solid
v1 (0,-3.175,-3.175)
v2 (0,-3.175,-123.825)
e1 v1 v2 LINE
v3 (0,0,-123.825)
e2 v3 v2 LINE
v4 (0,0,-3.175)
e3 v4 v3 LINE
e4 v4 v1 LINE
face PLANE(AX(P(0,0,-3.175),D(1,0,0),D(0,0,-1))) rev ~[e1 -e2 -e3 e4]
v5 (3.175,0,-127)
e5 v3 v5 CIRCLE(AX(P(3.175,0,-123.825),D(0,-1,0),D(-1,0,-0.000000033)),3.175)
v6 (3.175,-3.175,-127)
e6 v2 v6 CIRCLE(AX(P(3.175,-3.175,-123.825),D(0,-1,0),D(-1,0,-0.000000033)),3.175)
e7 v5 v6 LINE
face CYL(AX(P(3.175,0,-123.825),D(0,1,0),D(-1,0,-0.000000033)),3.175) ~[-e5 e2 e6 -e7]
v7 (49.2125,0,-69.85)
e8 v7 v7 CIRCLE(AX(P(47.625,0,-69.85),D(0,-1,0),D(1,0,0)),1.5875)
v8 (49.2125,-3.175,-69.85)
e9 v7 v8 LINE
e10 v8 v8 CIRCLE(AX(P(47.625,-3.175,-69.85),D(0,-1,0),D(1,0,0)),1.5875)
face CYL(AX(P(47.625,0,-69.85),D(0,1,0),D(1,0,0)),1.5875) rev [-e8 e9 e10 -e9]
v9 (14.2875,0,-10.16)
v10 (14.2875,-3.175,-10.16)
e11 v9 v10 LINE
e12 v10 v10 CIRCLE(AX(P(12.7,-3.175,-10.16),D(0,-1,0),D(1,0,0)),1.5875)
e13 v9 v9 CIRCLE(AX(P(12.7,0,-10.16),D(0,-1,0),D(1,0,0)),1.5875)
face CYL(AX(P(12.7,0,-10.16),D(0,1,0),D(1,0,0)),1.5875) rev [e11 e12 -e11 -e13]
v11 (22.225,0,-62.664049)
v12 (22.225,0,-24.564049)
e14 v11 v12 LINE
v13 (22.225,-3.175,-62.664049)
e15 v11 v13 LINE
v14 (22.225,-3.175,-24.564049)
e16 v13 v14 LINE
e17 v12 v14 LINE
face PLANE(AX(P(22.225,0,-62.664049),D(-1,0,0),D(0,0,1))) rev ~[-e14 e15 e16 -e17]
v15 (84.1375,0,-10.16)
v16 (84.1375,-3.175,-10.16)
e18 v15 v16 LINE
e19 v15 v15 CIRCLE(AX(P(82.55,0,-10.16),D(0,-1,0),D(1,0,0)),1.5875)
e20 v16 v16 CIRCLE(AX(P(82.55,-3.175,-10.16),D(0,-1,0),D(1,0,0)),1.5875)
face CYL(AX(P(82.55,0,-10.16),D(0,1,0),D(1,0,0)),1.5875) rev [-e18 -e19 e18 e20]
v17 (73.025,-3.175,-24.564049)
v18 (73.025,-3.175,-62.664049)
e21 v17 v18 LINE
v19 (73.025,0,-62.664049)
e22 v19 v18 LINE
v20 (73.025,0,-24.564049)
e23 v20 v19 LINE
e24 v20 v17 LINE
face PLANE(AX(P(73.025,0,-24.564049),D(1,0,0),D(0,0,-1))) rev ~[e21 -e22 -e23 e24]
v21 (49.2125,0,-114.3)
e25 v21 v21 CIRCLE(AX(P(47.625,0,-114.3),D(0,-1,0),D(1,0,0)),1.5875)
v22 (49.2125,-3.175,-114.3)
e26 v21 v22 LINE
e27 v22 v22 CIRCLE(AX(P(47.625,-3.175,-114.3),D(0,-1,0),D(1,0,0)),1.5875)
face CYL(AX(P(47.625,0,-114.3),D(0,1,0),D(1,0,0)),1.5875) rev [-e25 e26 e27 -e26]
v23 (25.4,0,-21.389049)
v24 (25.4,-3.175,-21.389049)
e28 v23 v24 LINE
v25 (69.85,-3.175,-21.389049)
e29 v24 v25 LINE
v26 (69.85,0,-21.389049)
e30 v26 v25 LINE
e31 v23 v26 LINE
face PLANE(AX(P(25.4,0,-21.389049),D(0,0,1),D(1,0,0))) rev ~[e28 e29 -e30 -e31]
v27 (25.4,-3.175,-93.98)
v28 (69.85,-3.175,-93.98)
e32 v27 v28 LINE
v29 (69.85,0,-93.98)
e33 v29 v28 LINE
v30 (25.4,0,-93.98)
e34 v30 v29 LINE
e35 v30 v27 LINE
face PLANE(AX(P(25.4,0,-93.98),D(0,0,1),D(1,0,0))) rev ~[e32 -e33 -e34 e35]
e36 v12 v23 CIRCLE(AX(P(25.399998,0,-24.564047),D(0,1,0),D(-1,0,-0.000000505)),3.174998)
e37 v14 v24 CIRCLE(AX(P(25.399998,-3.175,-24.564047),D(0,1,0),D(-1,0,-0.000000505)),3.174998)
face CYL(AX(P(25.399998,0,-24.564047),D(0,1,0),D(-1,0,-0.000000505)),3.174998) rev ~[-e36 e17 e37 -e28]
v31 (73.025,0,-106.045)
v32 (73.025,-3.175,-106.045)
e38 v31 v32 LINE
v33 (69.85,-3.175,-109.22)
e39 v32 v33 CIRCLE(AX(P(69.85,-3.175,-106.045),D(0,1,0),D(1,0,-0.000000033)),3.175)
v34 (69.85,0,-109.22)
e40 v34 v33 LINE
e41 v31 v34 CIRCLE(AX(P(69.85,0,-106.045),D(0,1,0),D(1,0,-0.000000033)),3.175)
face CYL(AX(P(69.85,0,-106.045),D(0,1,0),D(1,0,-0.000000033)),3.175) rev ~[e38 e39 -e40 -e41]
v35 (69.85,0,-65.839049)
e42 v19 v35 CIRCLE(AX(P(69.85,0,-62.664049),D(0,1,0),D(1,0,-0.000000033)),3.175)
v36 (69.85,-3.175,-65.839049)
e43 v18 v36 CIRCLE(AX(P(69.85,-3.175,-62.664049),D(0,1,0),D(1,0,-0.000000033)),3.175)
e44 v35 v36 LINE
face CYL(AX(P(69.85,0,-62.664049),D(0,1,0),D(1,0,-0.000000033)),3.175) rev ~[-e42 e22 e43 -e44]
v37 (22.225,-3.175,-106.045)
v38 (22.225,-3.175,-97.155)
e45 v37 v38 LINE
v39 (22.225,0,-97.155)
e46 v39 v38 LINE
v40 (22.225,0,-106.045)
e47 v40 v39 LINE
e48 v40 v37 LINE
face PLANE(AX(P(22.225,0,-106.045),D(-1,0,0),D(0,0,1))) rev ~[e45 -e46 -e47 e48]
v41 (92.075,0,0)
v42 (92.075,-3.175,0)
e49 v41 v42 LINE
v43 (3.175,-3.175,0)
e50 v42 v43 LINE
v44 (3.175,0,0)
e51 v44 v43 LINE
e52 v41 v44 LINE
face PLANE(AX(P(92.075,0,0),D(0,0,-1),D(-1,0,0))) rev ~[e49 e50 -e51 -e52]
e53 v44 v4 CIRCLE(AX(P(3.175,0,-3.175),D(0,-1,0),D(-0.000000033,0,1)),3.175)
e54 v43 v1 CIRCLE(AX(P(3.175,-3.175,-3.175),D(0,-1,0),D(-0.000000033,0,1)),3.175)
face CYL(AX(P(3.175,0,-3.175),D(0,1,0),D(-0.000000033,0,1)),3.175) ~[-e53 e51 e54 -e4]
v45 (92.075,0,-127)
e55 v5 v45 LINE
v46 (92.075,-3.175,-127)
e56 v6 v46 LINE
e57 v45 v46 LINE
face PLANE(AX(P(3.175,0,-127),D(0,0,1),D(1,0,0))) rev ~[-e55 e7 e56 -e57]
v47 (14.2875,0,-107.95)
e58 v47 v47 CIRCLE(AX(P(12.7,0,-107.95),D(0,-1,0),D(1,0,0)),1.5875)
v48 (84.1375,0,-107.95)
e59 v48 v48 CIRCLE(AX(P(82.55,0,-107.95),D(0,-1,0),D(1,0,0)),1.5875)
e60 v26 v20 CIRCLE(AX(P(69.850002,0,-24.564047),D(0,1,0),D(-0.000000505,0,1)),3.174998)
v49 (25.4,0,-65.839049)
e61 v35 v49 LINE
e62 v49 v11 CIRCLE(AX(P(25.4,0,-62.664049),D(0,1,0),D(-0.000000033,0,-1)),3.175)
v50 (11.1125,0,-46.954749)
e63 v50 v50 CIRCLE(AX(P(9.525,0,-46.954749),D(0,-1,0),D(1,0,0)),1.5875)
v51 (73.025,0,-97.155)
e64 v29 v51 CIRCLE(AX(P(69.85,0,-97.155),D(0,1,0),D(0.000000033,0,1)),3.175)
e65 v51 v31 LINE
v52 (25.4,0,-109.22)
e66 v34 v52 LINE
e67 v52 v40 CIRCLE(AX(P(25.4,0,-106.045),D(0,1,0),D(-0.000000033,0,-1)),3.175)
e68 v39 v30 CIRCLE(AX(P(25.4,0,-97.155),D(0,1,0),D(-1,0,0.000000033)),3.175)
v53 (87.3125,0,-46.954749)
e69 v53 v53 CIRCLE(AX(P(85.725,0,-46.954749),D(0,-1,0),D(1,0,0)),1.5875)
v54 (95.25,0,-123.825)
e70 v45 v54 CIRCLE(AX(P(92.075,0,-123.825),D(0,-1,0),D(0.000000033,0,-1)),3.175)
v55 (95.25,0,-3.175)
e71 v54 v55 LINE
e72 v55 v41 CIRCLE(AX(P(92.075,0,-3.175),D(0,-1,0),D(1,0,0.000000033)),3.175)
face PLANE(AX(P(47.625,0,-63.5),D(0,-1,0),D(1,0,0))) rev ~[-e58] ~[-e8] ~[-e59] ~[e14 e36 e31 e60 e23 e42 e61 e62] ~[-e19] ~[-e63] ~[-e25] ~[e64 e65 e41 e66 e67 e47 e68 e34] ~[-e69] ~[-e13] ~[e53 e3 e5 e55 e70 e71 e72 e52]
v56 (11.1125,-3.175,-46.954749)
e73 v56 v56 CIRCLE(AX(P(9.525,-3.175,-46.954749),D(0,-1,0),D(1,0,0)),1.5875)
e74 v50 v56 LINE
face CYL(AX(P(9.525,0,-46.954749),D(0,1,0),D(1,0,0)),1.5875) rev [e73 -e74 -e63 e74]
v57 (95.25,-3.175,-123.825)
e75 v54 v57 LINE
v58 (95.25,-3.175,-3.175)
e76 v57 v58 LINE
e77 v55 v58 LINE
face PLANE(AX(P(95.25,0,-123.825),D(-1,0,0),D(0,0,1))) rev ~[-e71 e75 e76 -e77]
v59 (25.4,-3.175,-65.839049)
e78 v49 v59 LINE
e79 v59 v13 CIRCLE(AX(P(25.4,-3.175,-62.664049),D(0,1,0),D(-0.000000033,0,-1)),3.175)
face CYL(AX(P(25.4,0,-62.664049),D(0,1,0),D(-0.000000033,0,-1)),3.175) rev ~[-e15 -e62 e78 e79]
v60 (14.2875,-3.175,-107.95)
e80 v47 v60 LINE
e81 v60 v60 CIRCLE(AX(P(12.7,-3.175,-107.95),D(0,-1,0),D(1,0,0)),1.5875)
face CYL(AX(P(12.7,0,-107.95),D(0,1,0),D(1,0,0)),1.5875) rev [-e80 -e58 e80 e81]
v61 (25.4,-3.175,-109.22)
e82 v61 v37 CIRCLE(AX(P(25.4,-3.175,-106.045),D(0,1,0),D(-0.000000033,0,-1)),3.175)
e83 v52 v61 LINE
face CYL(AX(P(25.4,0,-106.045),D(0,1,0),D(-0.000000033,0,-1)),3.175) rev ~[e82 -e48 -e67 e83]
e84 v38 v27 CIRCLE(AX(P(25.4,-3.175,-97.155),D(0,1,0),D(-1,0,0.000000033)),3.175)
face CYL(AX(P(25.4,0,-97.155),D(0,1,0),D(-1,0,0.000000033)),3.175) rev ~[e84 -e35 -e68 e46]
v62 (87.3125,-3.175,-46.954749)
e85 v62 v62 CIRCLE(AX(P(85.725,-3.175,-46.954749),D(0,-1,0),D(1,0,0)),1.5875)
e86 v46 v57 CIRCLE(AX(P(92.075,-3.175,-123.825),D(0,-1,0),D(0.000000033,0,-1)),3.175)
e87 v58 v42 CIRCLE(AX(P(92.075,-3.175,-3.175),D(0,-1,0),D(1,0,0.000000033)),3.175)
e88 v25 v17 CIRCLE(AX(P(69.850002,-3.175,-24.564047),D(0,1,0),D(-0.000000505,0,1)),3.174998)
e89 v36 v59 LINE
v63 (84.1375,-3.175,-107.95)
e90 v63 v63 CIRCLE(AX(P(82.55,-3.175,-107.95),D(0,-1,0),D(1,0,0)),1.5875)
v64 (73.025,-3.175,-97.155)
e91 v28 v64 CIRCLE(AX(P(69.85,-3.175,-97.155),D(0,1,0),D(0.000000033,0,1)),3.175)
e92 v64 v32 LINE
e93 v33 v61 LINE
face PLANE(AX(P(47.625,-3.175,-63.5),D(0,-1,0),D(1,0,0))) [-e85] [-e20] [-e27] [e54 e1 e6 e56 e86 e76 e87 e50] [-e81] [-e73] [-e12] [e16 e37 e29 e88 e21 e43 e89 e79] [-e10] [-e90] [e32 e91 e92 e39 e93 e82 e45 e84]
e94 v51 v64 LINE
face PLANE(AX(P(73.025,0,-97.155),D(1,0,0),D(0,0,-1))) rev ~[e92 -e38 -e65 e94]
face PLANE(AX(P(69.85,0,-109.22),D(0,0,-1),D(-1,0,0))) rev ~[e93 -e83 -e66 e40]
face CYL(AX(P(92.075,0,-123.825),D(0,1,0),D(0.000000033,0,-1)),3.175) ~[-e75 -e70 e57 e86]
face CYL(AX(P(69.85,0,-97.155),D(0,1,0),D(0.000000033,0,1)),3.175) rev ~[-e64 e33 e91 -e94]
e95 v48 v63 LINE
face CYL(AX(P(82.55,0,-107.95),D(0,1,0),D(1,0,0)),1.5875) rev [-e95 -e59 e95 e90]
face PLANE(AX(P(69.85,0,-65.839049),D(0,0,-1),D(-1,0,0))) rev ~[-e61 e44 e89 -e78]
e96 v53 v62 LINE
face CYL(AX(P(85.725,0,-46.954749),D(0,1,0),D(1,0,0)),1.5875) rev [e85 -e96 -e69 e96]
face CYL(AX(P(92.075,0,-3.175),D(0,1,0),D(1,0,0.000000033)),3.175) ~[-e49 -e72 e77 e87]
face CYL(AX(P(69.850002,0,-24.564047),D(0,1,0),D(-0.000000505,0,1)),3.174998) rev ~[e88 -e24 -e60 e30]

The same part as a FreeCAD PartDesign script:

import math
import FreeCAD as App
import Part
import Sketcher
from FreeCAD import Vector
Q = App.Units.Quantity

doc = App.newDocument("Part")
body = doc.addObject("PartDesign::Body", "Body")

# Sketch on XZ plane
sketch1 = body.newObject("Sketcher::SketchObject", "Sketch")
sketch1.AttachmentSupport = (doc.getObject("XZ_Plane"), [""])
sketch1.MapMode = "FlatFace"
sketch1.addGeometry([
    Part.LineSegment(Vector(92.1, 0, 0), Vector(3.2, 0, 0)),  # 0
    Part.ArcOfCircle(Part.Circle(Vector(3.2, -3.2, 0), Vector(0, 0, 1), 3.2), math.radians(90), math.radians(180)),  # 1
    Part.LineSegment(Vector(0, -3.2, 0), Vector(0, -123.8, 0)),  # 2
    Part.ArcOfCircle(Part.Circle(Vector(3.2, -123.8, 0), Vector(0, 0, 1), 3.2), math.radians(-180), math.radians(-90)),  # 3
    Part.LineSegment(Vector(3.2, -127, 0), Vector(92.1, -127, 0)),  # 4
    Part.ArcOfCircle(Part.Circle(Vector(92.1, -123.8, 0), Vector(0, 0, 1), 3.2), math.radians(-90), math.radians(0)),  # 5
    Part.LineSegment(Vector(95.2, -123.8, 0), Vector(95.2, -3.2, 0)),  # 6
    Part.ArcOfCircle(Part.Circle(Vector(92.1, -3.2, 0), Vector(0, 0, 1), 3.2), math.radians(0), math.radians(90)),  # 7
    Part.Circle(Vector(12.7, -108, 0), Vector(0, 0, 1), 1.6),  # 8
    Part.Circle(Vector(47.6, -114.3, 0), Vector(0, 0, 1), 1.6),  # 9
    Part.ArcOfCircle(Part.Circle(Vector(25.4, -97.2, 0), Vector(0, 0, 1), 3.2), math.radians(90), math.radians(180)),  # 10
    Part.LineSegment(Vector(25.4, -94, 0), Vector(69.8, -94, 0)),  # 11
    Part.ArcOfCircle(Part.Circle(Vector(69.8, -97.2, 0), Vector(0, 0, 1), 3.2), math.radians(0), math.radians(90)),  # 12
    Part.LineSegment(Vector(73, -97.2, 0), Vector(73, -106, 0)),  # 13
    Part.ArcOfCircle(Part.Circle(Vector(69.8, -106, 0), Vector(0, 0, 1), 3.2), math.radians(-90), math.radians(0)),  # 14
    Part.LineSegment(Vector(69.8, -109.2, 0), Vector(25.4, -109.2, 0)),  # 15
    Part.ArcOfCircle(Part.Circle(Vector(25.4, -106, 0), Vector(0, 0, 1), 3.2), math.radians(-180), math.radians(-90)),  # 16
    Part.LineSegment(Vector(22.2, -106, 0), Vector(22.2, -97.2, 0)),  # 17
    Part.Circle(Vector(82.5, -108, 0), Vector(0, 0, 1), 1.6),  # 18
    Part.Circle(Vector(47.6, -69.8, 0), Vector(0, 0, 1), 1.6),  # 19
    Part.Circle(Vector(9.5, -47, 0), Vector(0, 0, 1), 1.6),  # 20
    Part.Circle(Vector(12.7, -10.2, 0), Vector(0, 0, 1), 1.6),  # 21
    Part.LineSegment(Vector(22.2, -62.7, 0), Vector(22.2, -24.6, 0)),  # 22
    Part.ArcOfCircle(Part.Circle(Vector(25.4, -24.6, 0), Vector(0, 0, 1), 3.2), math.radians(90), math.radians(180)),  # 23
    Part.LineSegment(Vector(25.4, -21.4, 0), Vector(69.8, -21.4, 0)),  # 24
    Part.ArcOfCircle(Part.Circle(Vector(69.9, -24.6, 0), Vector(0, 0, 1), 3.2), math.radians(0), math.radians(90)),  # 25
    Part.LineSegment(Vector(73, -24.6, 0), Vector(73, -62.7, 0)),  # 26
    Part.ArcOfCircle(Part.Circle(Vector(69.8, -62.7, 0), Vector(0, 0, 1), 3.2), math.radians(-90), math.radians(0)),  # 27
    Part.LineSegment(Vector(69.8, -65.8, 0), Vector(25.4, -65.8, 0)),  # 28
    Part.ArcOfCircle(Part.Circle(Vector(25.4, -62.7, 0), Vector(0, 0, 1), 3.2), math.radians(-180), math.radians(-90)),  # 29
    Part.Circle(Vector(85.7, -47, 0), Vector(0, 0, 1), 1.6),  # 30
    Part.Circle(Vector(82.5, -10.2, 0), Vector(0, 0, 1), 1.6),  # 31
], False)
sketch1.addConstraint([
    Sketcher.Constraint("Tangent", 0, 2, 1, 1),
    Sketcher.Constraint("Tangent", 1, 2, 2, 1),
    Sketcher.Constraint("Tangent", 2, 2, 3, 1),
    Sketcher.Constraint("Tangent", 3, 2, 4, 1),
    Sketcher.Constraint("Tangent", 4, 2, 5, 1),
    Sketcher.Constraint("Tangent", 5, 2, 6, 1),
    Sketcher.Constraint("Tangent", 6, 2, 7, 1),
    Sketcher.Constraint("Tangent", 7, 2, 0, 1),
    Sketcher.Constraint("Tangent", 10, 1, 11, 1),
    Sketcher.Constraint("Tangent", 11, 2, 12, 2),
    Sketcher.Constraint("Tangent", 12, 1, 13, 1),
    Sketcher.Constraint("Tangent", 13, 2, 14, 2),
    Sketcher.Constraint("Tangent", 14, 1, 15, 1),
    Sketcher.Constraint("Tangent", 15, 2, 16, 2),
    Sketcher.Constraint("Tangent", 16, 1, 17, 1),
    Sketcher.Constraint("Tangent", 17, 2, 10, 2),
    Sketcher.Constraint("Tangent", 22, 2, 23, 2),
    Sketcher.Constraint("Tangent", 23, 1, 24, 1),
    Sketcher.Constraint("Tangent", 24, 2, 25, 2),
    Sketcher.Constraint("Tangent", 25, 1, 26, 1),
    Sketcher.Constraint("Tangent", 26, 2, 27, 2),
    Sketcher.Constraint("Tangent", 27, 1, 28, 1),
    Sketcher.Constraint("Tangent", 28, 2, 29, 2),
    Sketcher.Constraint("Tangent", 29, 1, 22, 1),
    Sketcher.Constraint("Horizontal", 0),
    Sketcher.Constraint("Vertical", 2),
    Sketcher.Constraint("Horizontal", 4),
    Sketcher.Constraint("Vertical", 6),
    Sketcher.Constraint("Horizontal", 11),
    Sketcher.Constraint("Vertical", 13),
    Sketcher.Constraint("Horizontal", 15),
    Sketcher.Constraint("Vertical", 17),
    Sketcher.Constraint("Vertical", 22),
    Sketcher.Constraint("Horizontal", 24),
    Sketcher.Constraint("Vertical", 26),
    Sketcher.Constraint("Horizontal", 28),
    Sketcher.Constraint("Equal", 1, 3),
    Sketcher.Constraint("Equal", 3, 5),
    Sketcher.Constraint("Equal", 5, 7),
    Sketcher.Constraint("Equal", 8, 9),
    Sketcher.Constraint("Equal", 7, 10),
    Sketcher.Constraint("Equal", 10, 12),
    Sketcher.Constraint("Equal", 12, 14),
    Sketcher.Constraint("Equal", 14, 16),
    Sketcher.Constraint("Equal", 9, 18),
    Sketcher.Constraint("Equal", 18, 19),
    Sketcher.Constraint("Equal", 19, 20),
    Sketcher.Constraint("Equal", 20, 21),
    Sketcher.Constraint("Equal", 16, 23),
    Sketcher.Constraint("Equal", 23, 25),
    Sketcher.Constraint("Equal", 25, 27),
    Sketcher.Constraint("Equal", 27, 29),
    Sketcher.Constraint("Equal", 21, 30),
    Sketcher.Constraint("Equal", 30, 31),
    Sketcher.Constraint("PointOnObject", 0, 2, -1),
    Sketcher.Constraint("PointOnObject", 1, 2, -2),
    Sketcher.Constraint("Horizontal", 8, 3, 18, 3),
    Sketcher.Constraint("Horizontal", 20, 3, 30, 3),
    Sketcher.Constraint("Horizontal", 21, 3, 31, 3),
    Sketcher.Constraint("Vertical", 9, 3, 19, 3),
    Sketcher.Constraint("Vertical", 8, 3, 21, 3),
    Sketcher.Constraint("Vertical", 16, 3, 23, 3),
    Sketcher.Constraint("Vertical", 14, 3, 25, 3),
    Sketcher.Constraint("Vertical", 18, 3, 31, 3),
    Sketcher.Constraint("Diameter", 8, Q("0.125 in")),
    Sketcher.Constraint("DistanceX", 0, 2, 0, 1, Q("3.5 in")),
    Sketcher.Constraint("DistanceY", 22, 1, 22, 2, Q("1.5 in")),
    Sketcher.Constraint("DistanceX", -1, 1, 10, 3, Q("1 in")),
    Sketcher.Constraint("DistanceY", 3, 2, -1, 1, Q("5 in")),
    Sketcher.Constraint("Radius", 1, Q("0.125 in")),
    Sketcher.Constraint("DistanceX", 14, 3, 5, 2, Q("1 in")),
    Sketcher.Constraint("DistanceX", 9, 3, 12, 1, Q("1 in")),
    Sketcher.Constraint("DistanceY", 13, 2, 13, 1, Q("0.35 in")),
    Sketcher.Constraint("DistanceX", -1, 1, 8, 3, Q("0.5 in")),
    Sketcher.Constraint("DistanceY", 9, 3, -1, 1, Q("4.5 in")),
    Sketcher.Constraint("DistanceY", 21, 3, -1, 1, Q("0.4 in")),
    Sketcher.Constraint("DistanceY", 10, 1, -1, 1, Q("3.7 in")),
    Sketcher.Constraint("DistanceX", 14, 3, 18, 3, Q("0.5 in")),
    Sketcher.Constraint("DistanceX", 20, 3, 19, 3, Q("1.5 in")),
    Sketcher.Constraint("DistanceX", 19, 3, 30, 3, Q("1.5 in")),
    Sketcher.Constraint("DistanceY", 8, 3, -1, 1, Q("4.25 in")),
    Sketcher.Constraint("DistanceY", 19, 3, -1, 1, Q("2.75 in")),
    Sketcher.Constraint("DistanceY", 20, 3, 23, 3, 22.390702),
    Sketcher.Constraint("DistanceY", 20, 3, -1, 1, 46.954749),
])
pad1 = body.newObject("PartDesign::Pad", "Pad")
pad1.Profile = sketch1
pad1.Length = Q("0.125 in")

doc.recompute()
